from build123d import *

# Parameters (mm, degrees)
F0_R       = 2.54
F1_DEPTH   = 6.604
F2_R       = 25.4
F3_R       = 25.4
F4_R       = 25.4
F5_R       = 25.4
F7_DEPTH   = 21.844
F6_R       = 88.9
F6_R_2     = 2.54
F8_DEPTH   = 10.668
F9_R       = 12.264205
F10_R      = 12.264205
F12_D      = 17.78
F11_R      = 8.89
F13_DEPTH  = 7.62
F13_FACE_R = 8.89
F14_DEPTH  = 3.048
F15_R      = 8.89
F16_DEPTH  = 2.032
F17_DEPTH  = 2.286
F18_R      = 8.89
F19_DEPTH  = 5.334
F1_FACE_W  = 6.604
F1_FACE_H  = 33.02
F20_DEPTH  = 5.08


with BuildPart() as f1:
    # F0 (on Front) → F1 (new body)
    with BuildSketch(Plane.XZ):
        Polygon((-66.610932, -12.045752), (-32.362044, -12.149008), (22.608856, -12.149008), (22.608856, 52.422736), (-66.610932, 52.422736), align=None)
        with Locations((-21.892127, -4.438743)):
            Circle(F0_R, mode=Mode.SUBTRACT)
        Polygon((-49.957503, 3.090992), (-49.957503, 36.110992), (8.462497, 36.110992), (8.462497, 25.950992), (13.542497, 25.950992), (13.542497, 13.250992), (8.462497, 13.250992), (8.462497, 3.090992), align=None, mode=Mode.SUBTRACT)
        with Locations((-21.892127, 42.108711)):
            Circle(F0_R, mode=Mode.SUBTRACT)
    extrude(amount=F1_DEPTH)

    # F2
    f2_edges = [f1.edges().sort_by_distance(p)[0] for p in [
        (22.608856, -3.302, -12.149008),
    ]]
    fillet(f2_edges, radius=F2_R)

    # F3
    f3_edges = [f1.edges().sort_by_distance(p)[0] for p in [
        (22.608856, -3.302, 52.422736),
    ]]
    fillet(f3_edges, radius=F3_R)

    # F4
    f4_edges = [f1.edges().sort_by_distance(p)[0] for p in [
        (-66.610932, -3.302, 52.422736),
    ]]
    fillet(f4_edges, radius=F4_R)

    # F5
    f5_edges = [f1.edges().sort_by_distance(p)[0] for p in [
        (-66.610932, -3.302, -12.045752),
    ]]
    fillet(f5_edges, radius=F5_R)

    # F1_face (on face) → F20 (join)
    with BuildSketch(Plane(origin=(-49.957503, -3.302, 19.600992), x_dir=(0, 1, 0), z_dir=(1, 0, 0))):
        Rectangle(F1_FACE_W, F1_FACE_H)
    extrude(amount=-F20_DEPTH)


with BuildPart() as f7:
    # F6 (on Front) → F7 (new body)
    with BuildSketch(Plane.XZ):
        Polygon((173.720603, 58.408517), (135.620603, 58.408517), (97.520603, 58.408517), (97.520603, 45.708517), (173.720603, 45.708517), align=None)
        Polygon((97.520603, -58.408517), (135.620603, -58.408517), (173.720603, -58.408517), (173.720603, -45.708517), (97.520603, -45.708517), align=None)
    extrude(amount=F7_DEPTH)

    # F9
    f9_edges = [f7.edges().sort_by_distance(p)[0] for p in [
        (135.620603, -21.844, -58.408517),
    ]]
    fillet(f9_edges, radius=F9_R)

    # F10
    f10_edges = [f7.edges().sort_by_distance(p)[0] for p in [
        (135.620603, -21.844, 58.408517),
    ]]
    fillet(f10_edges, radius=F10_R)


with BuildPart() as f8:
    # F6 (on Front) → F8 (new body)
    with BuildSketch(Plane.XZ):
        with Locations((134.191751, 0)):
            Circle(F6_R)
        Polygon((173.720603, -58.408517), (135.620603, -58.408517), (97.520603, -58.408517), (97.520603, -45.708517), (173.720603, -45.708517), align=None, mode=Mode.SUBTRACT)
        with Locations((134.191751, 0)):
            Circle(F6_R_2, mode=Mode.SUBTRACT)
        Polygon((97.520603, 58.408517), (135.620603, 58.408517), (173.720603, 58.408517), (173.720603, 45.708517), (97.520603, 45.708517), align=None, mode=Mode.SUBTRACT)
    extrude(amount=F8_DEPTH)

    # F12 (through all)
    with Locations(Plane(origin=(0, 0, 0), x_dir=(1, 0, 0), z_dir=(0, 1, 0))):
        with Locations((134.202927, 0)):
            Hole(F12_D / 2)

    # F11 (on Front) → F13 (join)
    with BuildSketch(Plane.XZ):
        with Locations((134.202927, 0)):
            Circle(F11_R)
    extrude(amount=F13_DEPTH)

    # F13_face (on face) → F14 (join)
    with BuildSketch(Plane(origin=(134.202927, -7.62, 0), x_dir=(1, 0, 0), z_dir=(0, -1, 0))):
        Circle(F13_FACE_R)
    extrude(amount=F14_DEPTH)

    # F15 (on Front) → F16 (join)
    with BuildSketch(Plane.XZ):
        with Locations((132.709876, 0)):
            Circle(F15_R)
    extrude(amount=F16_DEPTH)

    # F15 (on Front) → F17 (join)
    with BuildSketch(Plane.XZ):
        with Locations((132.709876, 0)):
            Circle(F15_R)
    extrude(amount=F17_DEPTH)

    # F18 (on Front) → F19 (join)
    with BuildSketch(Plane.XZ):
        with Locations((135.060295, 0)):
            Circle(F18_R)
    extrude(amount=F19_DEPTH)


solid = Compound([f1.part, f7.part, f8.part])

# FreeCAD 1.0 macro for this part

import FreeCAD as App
import Part
import Sketcher
from FreeCAD import Vector
Q = App.Units.Quantity


def edges_at(feature, points):
    """Names of the edges that pass closest to the given points."""
    edges = feature.Shape.Edges
    near = lambda p: min(range(len(edges)), key=lambda i: edges[i].distToShape(Part.Vertex(*p))[0])
    return sorted({f"Edge{near(p) + 1}" for p in points})

doc = App.newDocument("Part")
params = doc.addObject("Spreadsheet::Sheet", "Params")
for row, (alias, value) in enumerate([
    ("sketch1_diameter", "0.2 in"),
    ("sketch1_width", "2.3 in"),
    ("sketch1_width2", "0.2 in"),
    ("sketch1_height", "1.3 in"),
    ("sketch1_height2", "0.4 in"),
    ("pad1_length", "0.26 in"),
    ("fillet_radius", "1 in"),
    ("fillet2_radius", "1 in"),
    ("fillet3_radius", "1 in"),
    ("fillet4_radius", "1 in"),
    ("sketch2_height", "1.3 in"),
    ("sketch2_width", "0.26 in"),
    ("pad2_length", "0.2 in"),
    ("sketch3_width", "3 in"),
    ("sketch3_height", "0.5 in"),
    ("pad3_length", "0.86 in"),
    ("fillet5_radius", "12.264205 mm"),
    ("fillet6_radius", "12.264205 mm"),
    ("sketch4_diameter", "7 in"),
    ("sketch4_diameter2", "0.2 in"),
    ("sketch4_width", "3 in"),
    ("sketch4_height", "0.5 in"),
    ("pad4_length", "0.42 in"),
    ("sketch5_diameter", "0.7 in"),
    ("hole_diameter", "0.7 in"),
    ("sketch6_diameter", "0.7 in"),
    ("pad5_length", "0.3 in"),
    ("sketch7_diameter", "0.7 in"),
    ("pad6_length", "0.12 in"),
    ("sketch8_diameter", "0.7 in"),
    ("pad7_length", "0.08 in"),
    ("sketch9_diameter", "0.7 in"),
    ("pad8_length", "0.09 in"),
    ("sketch10_diameter", "0.7 in"),
    ("pad9_length", "0.21 in"),
], start=1):
    params.set(f"A{row}", alias)
    params.set(f"B{row}", "=" + value)
    params.setAlias(f"B{row}", alias)

body = doc.addObject("PartDesign::Body", "Body")

sketch1 = body.newObject("Sketcher::SketchObject", "Sketch")
sketch1.AttachmentSupport = (doc.getObject("XZ_Plane"), [""])
sketch1.MapMode = "FlatFace"
sketch1.addGeometry([
    Part.LineSegment(Vector(-66.610932, -12.045752, 0), Vector(-32.362044, -12.149008, 0)),
    Part.LineSegment(Vector(-32.362044, -12.149008, 0), Vector(22.608856, -12.149008, 0)),
    Part.LineSegment(Vector(22.608856, -12.149008, 0), Vector(22.608856, 52.422736, 0)),
    Part.LineSegment(Vector(22.608856, 52.422736, 0), Vector(-66.610932, 52.422736, 0)),
    Part.LineSegment(Vector(-66.610932, 52.422736, 0), Vector(-66.610932, -12.045752, 0)),
    Part.Circle(Vector(-21.892127, -4.438743, 0), Vector(0, 0, 1), 2.54),
    Part.Circle(Vector(-21.892127, 42.108711, 0), Vector(0, 0, 1), 2.54),
    Part.LineSegment(Vector(8.462497, 3.090992, 0), Vector(-49.957503, 3.090992, 0)),
    Part.LineSegment(Vector(-49.957503, 3.090992, 0), Vector(-49.957503, 36.110992, 0)),
    Part.LineSegment(Vector(-49.957503, 36.110992, 0), Vector(8.462497, 36.110992, 0)),
    Part.LineSegment(Vector(8.462497, 36.110992, 0), Vector(8.462497, 25.950992, 0)),
    Part.LineSegment(Vector(8.462497, 25.950992, 0), Vector(13.542497, 25.950992, 0)),
    Part.LineSegment(Vector(13.542497, 25.950992, 0), Vector(13.542497, 13.250992, 0)),
    Part.LineSegment(Vector(13.542497, 13.250992, 0), Vector(8.462497, 13.250992, 0)),
    Part.LineSegment(Vector(8.462497, 13.250992, 0), Vector(8.462497, 3.090992, 0)),
], False)
sketch1.addConstraint([
    Sketcher.Constraint("Coincident", 0, 2, 1, 1),
    Sketcher.Constraint("Coincident", 1, 2, 2, 1),
    Sketcher.Constraint("Coincident", 2, 2, 3, 1),
    Sketcher.Constraint("Coincident", 3, 2, 4, 1),
    Sketcher.Constraint("Coincident", 4, 2, 0, 1),
    Sketcher.Constraint("Coincident", 7, 2, 8, 1),
    Sketcher.Constraint("Coincident", 8, 2, 9, 1),
    Sketcher.Constraint("Coincident", 9, 2, 10, 1),
    Sketcher.Constraint("Coincident", 10, 2, 11, 1),
    Sketcher.Constraint("Coincident", 11, 2, 12, 1),
    Sketcher.Constraint("Coincident", 12, 2, 13, 1),
    Sketcher.Constraint("Coincident", 13, 2, 14, 1),
    Sketcher.Constraint("Coincident", 14, 2, 7, 1),
    Sketcher.Constraint("Horizontal", 1),
    Sketcher.Constraint("Vertical", 2),
    Sketcher.Constraint("Horizontal", 3),
    Sketcher.Constraint("Vertical", 4),
    Sketcher.Constraint("Horizontal", 7),
    Sketcher.Constraint("Vertical", 8),
    Sketcher.Constraint("Horizontal", 9),
    Sketcher.Constraint("Vertical", 10),
    Sketcher.Constraint("Horizontal", 11),
    Sketcher.Constraint("Vertical", 12),
    Sketcher.Constraint("Horizontal", 13),
    Sketcher.Constraint("Vertical", 14),
    Sketcher.Constraint("Equal", 5, 6),
    Sketcher.Constraint("Vertical", 5, 3, 6, 3),
    Sketcher.Constraint("Vertical", 10, 2, 13, 2),
    Sketcher.Constraint("Equal", 10, 14),
    Sketcher.Constraint("Diameter", 5, Q("0.2 in")),
    Sketcher.Constraint("DistanceX", 7, 2, 7, 1, Q("2.3 in")),
    Sketcher.Constraint("DistanceX", 11, 1, 11, 2, Q("0.2 in")),
    Sketcher.Constraint("DistanceY", 8, 1, 8, 2, Q("1.3 in")),
    Sketcher.Constraint("DistanceY", 10, 2, 10, 1, Q("0.4 in")),
    Sketcher.Constraint("DistanceY", 1, 2, 12, 2, Q("1 in")),
    Sketcher.Constraint("DistanceX", 1, 1, 1, 2, Q("54.9709 mm")),
    Sketcher.Constraint("DistanceX", 3, 2, 3, 1, Q("89.219788 mm")),
    Sketcher.Constraint("DistanceY", 4, 2, 4, 1, Q("64.468488 mm")),
    Sketcher.Constraint("DistanceY", 2, 1, 2, 2, Q("64.571744 mm")),
    Sketcher.Constraint("DistanceY", -1, 1, 6, 3, Q("42.108711 mm")),
    Sketcher.Constraint("DistanceY", -1, 1, 7, 2, Q("3.090992 mm")),
    Sketcher.Constraint("DistanceY", 5, 3, 2, 2, Q("56.861479 mm")),
    Sketcher.Constraint("DistanceX", 4, 2, 7, 2, Q("16.653429 mm")),
    Sketcher.Constraint("DistanceX", 5, 3, -1, 1, Q("21.892127 mm")),
    Sketcher.Constraint("DistanceX", 0, 2, -1, 1, Q("32.362044 mm")),
])
sketch1.setExpression("Constraints[29]", "Params.sketch1_diameter")
sketch1.setExpression("Constraints[30]", "Params.sketch1_width")
sketch1.setExpression("Constraints[31]", "Params.sketch1_width2")
sketch1.setExpression("Constraints[32]", "Params.sketch1_height")
sketch1.setExpression("Constraints[33]", "Params.sketch1_height2")
pad1 = body.newObject("PartDesign::Pad", "Pad")
pad1.Profile = sketch1
pad1.setExpression("Length", "Params.pad1_length")
doc.recompute()

fillet = body.newObject("PartDesign::Fillet", "Fillet")
fillet.Base = (pad1, edges_at(pad1, [(22.609, -3.302, -12.149)]))
fillet.setExpression("Radius", "Params.fillet_radius")
doc.recompute()

fillet2 = body.newObject("PartDesign::Fillet", "Fillet001")
fillet2.Base = (fillet, edges_at(fillet, [(22.609, -3.302, 52.423)]))
fillet2.setExpression("Radius", "Params.fillet2_radius")
doc.recompute()

fillet3 = body.newObject("PartDesign::Fillet", "Fillet002")
fillet3.Base = (fillet2, edges_at(fillet2, [(-66.611, -3.302, 52.423)]))
fillet3.setExpression("Radius", "Params.fillet3_radius")
doc.recompute()

fillet4 = body.newObject("PartDesign::Fillet", "Fillet003")
fillet4.Base = (fillet3, edges_at(fillet3, [(-66.611, -3.302, -12.046)]))
fillet4.setExpression("Radius", "Params.fillet4_radius")

sketch2 = body.newObject("Sketcher::SketchObject", "Sketch001")
sketch2.AttachmentSupport = (doc.getObject("YZ_Plane"), [""])
sketch2.MapMode = "FlatFace"
sketch2.AttachmentOffset = App.Placement(Vector(0, 0, -49.957503), App.Rotation())
sketch2.addGeometry([
    Part.LineSegment(Vector(-6.604, 36.110992, 0), Vector(-6.604, 3.090992, 0)),
    Part.LineSegment(Vector(-6.604, 3.090992, 0), Vector(0, 3.090992, 0)),
    Part.LineSegment(Vector(0, 3.090992, 0), Vector(0, 36.110992, 0)),
    Part.LineSegment(Vector(0, 36.110992, 0), Vector(-6.604, 36.110992, 0)),
], False)
sketch2.addConstraint([
    Sketcher.Constraint("Coincident", 0, 2, 1, 1),
    Sketcher.Constraint("Coincident", 1, 2, 2, 1),
    Sketcher.Constraint("Coincident", 2, 2, 3, 1),
    Sketcher.Constraint("Coincident", 3, 2, 0, 1),
    Sketcher.Constraint("Vertical", 0),
    Sketcher.Constraint("Horizontal", 1),
    Sketcher.Constraint("Vertical", 2),
    Sketcher.Constraint("Horizontal", 3),
    Sketcher.Constraint("PointOnObject", 1, 2, -2),
    Sketcher.Constraint("DistanceY", 0, 2, 0, 1, Q("1.3 in")),
    Sketcher.Constraint("DistanceX", 1, 1, 1, 2, Q("0.26 in")),
    Sketcher.Constraint("DistanceY", -1, 1, 0, 2, Q("3.090992 mm")),
])
sketch2.setExpression("Constraints[9]", "Params.sketch2_height")
sketch2.setExpression("Constraints[10]", "Params.sketch2_width")
pad2 = body.newObject("PartDesign::Pad", "Pad001")
pad2.Profile = sketch2
pad2.setExpression("Length", "Params.pad2_length")
pad2.Reversed = True
body2 = doc.addObject("PartDesign::Body", "Body001")
body2.AllowCompound = True

sketch3 = body2.newObject("Sketcher::SketchObject", "Sketch002")
sketch3.AttachmentSupport = (doc.getObject("XZ_Plane001"), [""])
sketch3.MapMode = "FlatFace"
sketch3.addGeometry([
    Part.LineSegment(Vector(173.720603, 58.408517, 0), Vector(97.520603, 58.408517, 0)),
    Part.LineSegment(Vector(97.520603, 58.408517, 0), Vector(97.520603, 45.708517, 0)),
    Part.LineSegment(Vector(97.520603, 45.708517, 0), Vector(173.720603, 45.708517, 0)),
    Part.LineSegment(Vector(173.720603, 45.708517, 0), Vector(173.720603, 58.408517, 0)),
    Part.LineSegment(Vector(97.520603, -58.408517, 0), Vector(173.720603, -58.408517, 0)),
    Part.LineSegment(Vector(173.720603, -58.408517, 0), Vector(173.720603, -45.708517, 0)),
    Part.LineSegment(Vector(173.720603, -45.708517, 0), Vector(97.520603, -45.708517, 0)),
    Part.LineSegment(Vector(97.520603, -45.708517, 0), Vector(97.520603, -58.408517, 0)),
], False)
sketch3.addConstraint([
    Sketcher.Constraint("Coincident", 0, 2, 1, 1),
    Sketcher.Constraint("Coincident", 1, 2, 2, 1),
    Sketcher.Constraint("Coincident", 2, 2, 3, 1),
    Sketcher.Constraint("Coincident", 3, 2, 0, 1),
    Sketcher.Constraint("Coincident", 4, 2, 5, 1),
    Sketcher.Constraint("Coincident", 5, 2, 6, 1),
    Sketcher.Constraint("Coincident", 6, 2, 7, 1),
    Sketcher.Constraint("Coincident", 7, 2, 4, 1),
    Sketcher.Constraint("Horizontal", 0),
    Sketcher.Constraint("Vertical", 1),
    Sketcher.Constraint("Horizontal", 2),
    Sketcher.Constraint("Vertical", 3),
    Sketcher.Constraint("Horizontal", 4),
    Sketcher.Constraint("Vertical", 5),
    Sketcher.Constraint("Horizontal", 6),
    Sketcher.Constraint("Vertical", 7),
    Sketcher.Constraint("Symmetric", 3, 2, 4, 2, -1),
    Sketcher.Constraint("Symmetric", 1, 2, 6, 2, -1),
    Sketcher.Constraint("DistanceX", 0, 2, 0, 1, Q("3 in")),
    Sketcher.Constraint("DistanceY", 1, 2, 1, 1, Q("0.5 in")),
    Sketcher.Constraint("DistanceX", -1, 1, 0, 2, Q("97.520603 mm")),
    Sketcher.Constraint("DistanceY", -1, 1, 0, 2, Q("58.408517 mm")),
])
sketch3.setExpression("Constraints[18]", "Params.sketch3_width")
sketch3.setExpression("Constraints[19]", "Params.sketch3_height")
pad3 = body2.newObject("PartDesign::Pad", "Pad002")
pad3.Profile = sketch3
pad3.setExpression("Length", "Params.pad3_length")
doc.recompute()

fillet5 = body2.newObject("PartDesign::Fillet", "Fillet004")
fillet5.Base = (pad3, edges_at(pad3, [(135.621, -21.844, -58.409)]))
fillet5.setExpression("Radius", "Params.fillet5_radius")
doc.recompute()

fillet6 = body2.newObject("PartDesign::Fillet", "Fillet005")
fillet6.Base = (fillet5, edges_at(fillet5, [(135.621, -21.844, 58.409)]))
fillet6.setExpression("Radius", "Params.fillet6_radius")
body3 = doc.addObject("PartDesign::Body", "Body002")

sketch4 = body3.newObject("Sketcher::SketchObject", "Sketch003")
sketch4.AttachmentSupport = (doc.getObject("XZ_Plane002"), [""])
sketch4.MapMode = "FlatFace"
sketch4.addGeometry([
    Part.Circle(Vector(134.191751, 0, 0), Vector(0, 0, 1), 88.9),
    Part.LineSegment(Vector(173.720603, -45.708517, 0), Vector(173.720603, -58.408517, 0)),
    Part.LineSegment(Vector(173.720603, -58.408517, 0), Vector(97.520603, -58.408517, 0)),
    Part.LineSegment(Vector(97.520603, -58.408517, 0), Vector(97.520603, -45.708517, 0)),
    Part.LineSegment(Vector(97.520603, -45.708517, 0), Vector(173.720603, -45.708517, 0)),
    Part.Circle(Vector(134.191751, 0, 0), Vector(0, 0, 1), 2.54),
    Part.LineSegment(Vector(97.520603, 45.708517, 0), Vector(97.520603, 58.408517, 0)),
    Part.LineSegment(Vector(97.520603, 58.408517, 0), Vector(173.720603, 58.408517, 0)),
    Part.LineSegment(Vector(173.720603, 58.408517, 0), Vector(173.720603, 45.708517, 0)),
    Part.LineSegment(Vector(173.720603, 45.708517, 0), Vector(97.520603, 45.708517, 0)),
], False)
sketch4.addConstraint([
    Sketcher.Constraint("Coincident", 1, 2, 2, 1),
    Sketcher.Constraint("Coincident", 2, 2, 3, 1),
    Sketcher.Constraint("Coincident", 3, 2, 4, 1),
    Sketcher.Constraint("Coincident", 4, 2, 1, 1),
    Sketcher.Constraint("Coincident", 6, 2, 7, 1),
    Sketcher.Constraint("Coincident", 7, 2, 8, 1),
    Sketcher.Constraint("Coincident", 8, 2, 9, 1),
    Sketcher.Constraint("Coincident", 9, 2, 6, 1),
    Sketcher.Constraint("Vertical", 1),
    Sketcher.Constraint("Horizontal", 2),
    Sketcher.Constraint("Vertical", 3),
    Sketcher.Constraint("Horizontal", 4),
    Sketcher.Constraint("Vertical", 6),
    Sketcher.Constraint("Horizontal", 7),
    Sketcher.Constraint("Vertical", 8),
    Sketcher.Constraint("Horizontal", 9),
    Sketcher.Constraint("Coincident", 5, 3, 0, 3),
    Sketcher.Constraint("Symmetric", 2, 2, 6, 2, -1),
    Sketcher.Constraint("Symmetric", 4, 2, 8, 2, -1),
    Sketcher.Constraint("PointOnObject", 0, 3, -1),
    Sketcher.Constraint("Diameter", 0, Q("7 in")),
    Sketcher.Constraint("Diameter", 5, Q("0.2 in")),
    Sketcher.Constraint("DistanceX", 2, 2, 2, 1, Q("3 in")),
    Sketcher.Constraint("DistanceY", 1, 2, 1, 1, Q("0.5 in")),
    Sketcher.Constraint("DistanceX", -1, 1, 0, 3, Q("134.191751 mm")),
    Sketcher.Constraint("DistanceX", 2, 2, 0, 3, Q("36.671148 mm")),
    Sketcher.Constraint("DistanceY", 1, 2, -1, 1, Q("58.408517 mm")),
])
sketch4.setExpression("Constraints[20]", "Params.sketch4_diameter")
sketch4.setExpression("Constraints[21]", "Params.sketch4_diameter2")
sketch4.setExpression("Constraints[22]", "Params.sketch4_width")
sketch4.setExpression("Constraints[23]", "Params.sketch4_height")
pad4 = body3.newObject("PartDesign::Pad", "Pad003")
pad4.Profile = sketch4
pad4.setExpression("Length", "Params.pad4_length")

sketch5 = body3.newObject("Sketcher::SketchObject", "Sketch004")
sketch5.AttachmentSupport = (doc.getObject("XZ_Plane002"), [""])
sketch5.MapMode = "FlatFace"
sketch5.addGeometry(Part.Circle(Vector(134.202927, 0, 0), Vector(0, 0, 1), 8.89), False)
sketch5.addConstraint([
    Sketcher.Constraint("PointOnObject", 0, 3, -1),
    Sketcher.Constraint("Diameter", 0, Q("0.7 in")),
    Sketcher.Constraint("DistanceX", -1, 1, 0, 3, Q("134.202927 mm")),
])
sketch5.setExpression("Constraints[1]", "Params.sketch5_diameter")
doc.recompute()
hole = body3.newObject("PartDesign::Hole", "Hole")
hole.Profile = sketch5
hole.ThreadType = "None"
hole.setExpression("Diameter", "Params.hole_diameter")
hole.DepthType = "ThroughAll"
hole.Reversed = True

sketch6 = body3.newObject("Sketcher::SketchObject", "Sketch005")
sketch6.AttachmentSupport = (doc.getObject("XZ_Plane002"), [""])
sketch6.MapMode = "FlatFace"
sketch6.addGeometry(Part.Circle(Vector(134.202927, 0, 0), Vector(0, 0, 1), 8.89), False)
sketch6.addConstraint([
    Sketcher.Constraint("PointOnObject", 0, 3, -1),
    Sketcher.Constraint("Diameter", 0, Q("0.7 in")),
    Sketcher.Constraint("DistanceX", -1, 1, 0, 3, Q("134.202927 mm")),
])
sketch6.setExpression("Constraints[1]", "Params.sketch6_diameter")
pad5 = body3.newObject("PartDesign::Pad", "Pad004")
pad5.Profile = sketch6
pad5.setExpression("Length", "Params.pad5_length")

sketch7 = body3.newObject("Sketcher::SketchObject", "Sketch006")
sketch7.AttachmentSupport = (doc.getObject("XZ_Plane002"), [""])
sketch7.MapMode = "FlatFace"
sketch7.AttachmentOffset = App.Placement(Vector(0, 0, 0.3 * 25.4), App.Rotation())
sketch7.addGeometry(Part.Circle(Vector(134.202927, 0, 0), Vector(0, 0, 1), 8.89), False)
sketch7.addConstraint([
    Sketcher.Constraint("PointOnObject", 0, 3, -1),
    Sketcher.Constraint("Diameter", 0, Q("0.7 in")),
    Sketcher.Constraint("DistanceX", -1, 1, 0, 3, Q("134.202927 mm")),
])
sketch7.setExpression("Constraints[1]", "Params.sketch7_diameter")
pad6 = body3.newObject("PartDesign::Pad", "Pad005")
pad6.Profile = sketch7
pad6.setExpression("Length", "Params.pad6_length")

sketch8 = body3.newObject("Sketcher::SketchObject", "Sketch007")
sketch8.AttachmentSupport = (doc.getObject("XZ_Plane002"), [""])
sketch8.MapMode = "FlatFace"
sketch8.addGeometry(Part.Circle(Vector(132.709876, 0, 0), Vector(0, 0, 1), 8.89), False)
sketch8.addConstraint([
    Sketcher.Constraint("PointOnObject", 0, 3, -1),
    Sketcher.Constraint("Diameter", 0, Q("0.7 in")),
    Sketcher.Constraint("DistanceX", -1, 1, 0, 3, Q("132.709876 mm")),
])
sketch8.setExpression("Constraints[1]", "Params.sketch8_diameter")
pad7 = body3.newObject("PartDesign::Pad", "Pad006")
pad7.Profile = sketch8
pad7.setExpression("Length", "Params.pad7_length")

sketch9 = body3.newObject("Sketcher::SketchObject", "Sketch008")
sketch9.AttachmentSupport = (doc.getObject("XZ_Plane002"), [""])
sketch9.MapMode = "FlatFace"
sketch9.addGeometry(Part.Circle(Vector(132.709876, 0, 0), Vector(0, 0, 1), 8.89), False)
sketch9.addConstraint([
    Sketcher.Constraint("PointOnObject", 0, 3, -1),
    Sketcher.Constraint("Diameter", 0, Q("0.7 in")),
    Sketcher.Constraint("DistanceX", -1, 1, 0, 3, Q("132.709876 mm")),
])
sketch9.setExpression("Constraints[1]", "Params.sketch9_diameter")
pad8 = body3.newObject("PartDesign::Pad", "Pad007")
pad8.Profile = sketch9
pad8.setExpression("Length", "Params.pad8_length")

sketch10 = body3.newObject("Sketcher::SketchObject", "Sketch009")
sketch10.AttachmentSupport = (doc.getObject("XZ_Plane002"), [""])
sketch10.MapMode = "FlatFace"
sketch10.addGeometry(Part.Circle(Vector(135.060295, 0, 0), Vector(0, 0, 1), 8.89), False)
sketch10.addConstraint([
    Sketcher.Constraint("PointOnObject", 0, 3, -1),
    Sketcher.Constraint("Diameter", 0, Q("0.7 in")),
    Sketcher.Constraint("DistanceX", -1, 1, 0, 3, Q("135.060295 mm")),
])
sketch10.setExpression("Constraints[1]", "Params.sketch10_diameter")
pad9 = body3.newObject("PartDesign::Pad", "Pad008")
pad9.Profile = sketch10
pad9.setExpression("Length", "Params.pad9_length")

doc.recompute()
